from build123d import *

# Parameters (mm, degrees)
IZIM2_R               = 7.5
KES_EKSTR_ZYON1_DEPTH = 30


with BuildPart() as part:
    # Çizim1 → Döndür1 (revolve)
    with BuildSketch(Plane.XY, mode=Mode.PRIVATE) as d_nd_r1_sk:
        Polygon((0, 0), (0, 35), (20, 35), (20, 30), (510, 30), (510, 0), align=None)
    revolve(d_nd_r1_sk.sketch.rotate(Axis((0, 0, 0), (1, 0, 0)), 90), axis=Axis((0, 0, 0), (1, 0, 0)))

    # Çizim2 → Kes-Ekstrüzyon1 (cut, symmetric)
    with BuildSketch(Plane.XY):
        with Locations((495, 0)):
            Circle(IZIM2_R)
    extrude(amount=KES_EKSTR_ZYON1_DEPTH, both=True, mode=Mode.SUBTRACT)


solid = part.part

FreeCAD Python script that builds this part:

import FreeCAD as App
import Part
import Sketcher
Q = App.Units.Quantity

doc = App.newDocument("Part")
body = doc.addObject("PartDesign::Body", "Body")

# Sketch on XY plane
sketch1 = body.newObject("Sketcher::SketchObject", "Sketch")
sketch1.AttachmentSupport = (doc.getObject("XY_Plane"), [""])
sketch1.MapMode = "FlatFace"
sketch1.addGeometry(Part.LineSegment(App.Vector(0, 35, 0), App.Vector(0, 0, 0)), False)
sketch1.addGeometry(Part.LineSegment(App.Vector(0, 0, 0), App.Vector(510, 0, 0)), False)
sketch1.addGeometry(Part.LineSegment(App.Vector(510, 0, 0), App.Vector(510, 30, 0)), False)
sketch1.addGeometry(Part.LineSegment(App.Vector(510, 30, 0), App.Vector(20, 30, 0)), False)
sketch1.addGeometry(Part.LineSegment(App.Vector(20, 30, 0), App.Vector(20, 35, 0)), False)
sketch1.addGeometry(Part.LineSegment(App.Vector(20, 35, 0), App.Vector(0, 35, 0)), False)
sketch1.addConstraint(Sketcher.Constraint("Coincident", 0, 2, 1, 1))
sketch1.addConstraint(Sketcher.Constraint("Coincident", 1, 2, 2, 1))
sketch1.addConstraint(Sketcher.Constraint("Coincident", 2, 2, 3, 1))
sketch1.addConstraint(Sketcher.Constraint("Coincident", 3, 2, 4, 1))
sketch1.addConstraint(Sketcher.Constraint("Coincident", 4, 2, 5, 1))
sketch1.addConstraint(Sketcher.Constraint("Coincident", 5, 2, 0, 1))
sketch1.addConstraint(Sketcher.Constraint("Vertical", 0))
sketch1.addConstraint(Sketcher.Constraint("Horizontal", 1))
sketch1.addConstraint(Sketcher.Constraint("Vertical", 2))
sketch1.addConstraint(Sketcher.Constraint("Horizontal", 3))
sketch1.addConstraint(Sketcher.Constraint("Vertical", 4))
sketch1.addConstraint(Sketcher.Constraint("Horizontal", 5))
sketch1.addConstraint(Sketcher.Constraint("Coincident", 0, 2, -1, 1))
sketch1.addConstraint(Sketcher.Constraint("DistanceX", 1, 1, 1, 2, Q("510 mm")))
sketch1.addConstraint(Sketcher.Constraint("DistanceX", 3, 2, 3, 1, Q("490 mm")))
sketch1.addConstraint(Sketcher.Constraint("DistanceY", 0, 2, 0, 1, Q("35 mm")))
sketch1.addConstraint(Sketcher.Constraint("DistanceY", 2, 1, 2, 2, Q("30 mm")))
revolution = body.newObject("PartDesign::Revolution", "Revolution")
revolution.Profile = sketch1
revolution.ReferenceAxis = (sketch1, ["H_Axis"])
revolution.Angle = 360

# Sketch on XY plane
sketch2 = body.newObject("Sketcher::SketchObject", "Sketch001")
sketch2.AttachmentSupport = (doc.getObject("XY_Plane"), [""])
sketch2.MapMode = "FlatFace"
sketch2.addGeometry(Part.Circle(App.Vector(495, 0, 0), App.Vector(0, 0, 1), 8), False)
sketch2.addConstraint(Sketcher.Constraint("PointOnObject", 0, 3, -1))
sketch2.addConstraint(Sketcher.Constraint("Diameter", 0, Q("15 mm")))
sketch2.addConstraint(Sketcher.Constraint("DistanceX", -1, 1, 0, 3, Q("495 mm")))
pocket1 = body.newObject("PartDesign::Pocket", "Pocket")
pocket1.Profile = sketch2
pocket1.Length = 60
pocket1.Midplane = True

doc.recompute()
